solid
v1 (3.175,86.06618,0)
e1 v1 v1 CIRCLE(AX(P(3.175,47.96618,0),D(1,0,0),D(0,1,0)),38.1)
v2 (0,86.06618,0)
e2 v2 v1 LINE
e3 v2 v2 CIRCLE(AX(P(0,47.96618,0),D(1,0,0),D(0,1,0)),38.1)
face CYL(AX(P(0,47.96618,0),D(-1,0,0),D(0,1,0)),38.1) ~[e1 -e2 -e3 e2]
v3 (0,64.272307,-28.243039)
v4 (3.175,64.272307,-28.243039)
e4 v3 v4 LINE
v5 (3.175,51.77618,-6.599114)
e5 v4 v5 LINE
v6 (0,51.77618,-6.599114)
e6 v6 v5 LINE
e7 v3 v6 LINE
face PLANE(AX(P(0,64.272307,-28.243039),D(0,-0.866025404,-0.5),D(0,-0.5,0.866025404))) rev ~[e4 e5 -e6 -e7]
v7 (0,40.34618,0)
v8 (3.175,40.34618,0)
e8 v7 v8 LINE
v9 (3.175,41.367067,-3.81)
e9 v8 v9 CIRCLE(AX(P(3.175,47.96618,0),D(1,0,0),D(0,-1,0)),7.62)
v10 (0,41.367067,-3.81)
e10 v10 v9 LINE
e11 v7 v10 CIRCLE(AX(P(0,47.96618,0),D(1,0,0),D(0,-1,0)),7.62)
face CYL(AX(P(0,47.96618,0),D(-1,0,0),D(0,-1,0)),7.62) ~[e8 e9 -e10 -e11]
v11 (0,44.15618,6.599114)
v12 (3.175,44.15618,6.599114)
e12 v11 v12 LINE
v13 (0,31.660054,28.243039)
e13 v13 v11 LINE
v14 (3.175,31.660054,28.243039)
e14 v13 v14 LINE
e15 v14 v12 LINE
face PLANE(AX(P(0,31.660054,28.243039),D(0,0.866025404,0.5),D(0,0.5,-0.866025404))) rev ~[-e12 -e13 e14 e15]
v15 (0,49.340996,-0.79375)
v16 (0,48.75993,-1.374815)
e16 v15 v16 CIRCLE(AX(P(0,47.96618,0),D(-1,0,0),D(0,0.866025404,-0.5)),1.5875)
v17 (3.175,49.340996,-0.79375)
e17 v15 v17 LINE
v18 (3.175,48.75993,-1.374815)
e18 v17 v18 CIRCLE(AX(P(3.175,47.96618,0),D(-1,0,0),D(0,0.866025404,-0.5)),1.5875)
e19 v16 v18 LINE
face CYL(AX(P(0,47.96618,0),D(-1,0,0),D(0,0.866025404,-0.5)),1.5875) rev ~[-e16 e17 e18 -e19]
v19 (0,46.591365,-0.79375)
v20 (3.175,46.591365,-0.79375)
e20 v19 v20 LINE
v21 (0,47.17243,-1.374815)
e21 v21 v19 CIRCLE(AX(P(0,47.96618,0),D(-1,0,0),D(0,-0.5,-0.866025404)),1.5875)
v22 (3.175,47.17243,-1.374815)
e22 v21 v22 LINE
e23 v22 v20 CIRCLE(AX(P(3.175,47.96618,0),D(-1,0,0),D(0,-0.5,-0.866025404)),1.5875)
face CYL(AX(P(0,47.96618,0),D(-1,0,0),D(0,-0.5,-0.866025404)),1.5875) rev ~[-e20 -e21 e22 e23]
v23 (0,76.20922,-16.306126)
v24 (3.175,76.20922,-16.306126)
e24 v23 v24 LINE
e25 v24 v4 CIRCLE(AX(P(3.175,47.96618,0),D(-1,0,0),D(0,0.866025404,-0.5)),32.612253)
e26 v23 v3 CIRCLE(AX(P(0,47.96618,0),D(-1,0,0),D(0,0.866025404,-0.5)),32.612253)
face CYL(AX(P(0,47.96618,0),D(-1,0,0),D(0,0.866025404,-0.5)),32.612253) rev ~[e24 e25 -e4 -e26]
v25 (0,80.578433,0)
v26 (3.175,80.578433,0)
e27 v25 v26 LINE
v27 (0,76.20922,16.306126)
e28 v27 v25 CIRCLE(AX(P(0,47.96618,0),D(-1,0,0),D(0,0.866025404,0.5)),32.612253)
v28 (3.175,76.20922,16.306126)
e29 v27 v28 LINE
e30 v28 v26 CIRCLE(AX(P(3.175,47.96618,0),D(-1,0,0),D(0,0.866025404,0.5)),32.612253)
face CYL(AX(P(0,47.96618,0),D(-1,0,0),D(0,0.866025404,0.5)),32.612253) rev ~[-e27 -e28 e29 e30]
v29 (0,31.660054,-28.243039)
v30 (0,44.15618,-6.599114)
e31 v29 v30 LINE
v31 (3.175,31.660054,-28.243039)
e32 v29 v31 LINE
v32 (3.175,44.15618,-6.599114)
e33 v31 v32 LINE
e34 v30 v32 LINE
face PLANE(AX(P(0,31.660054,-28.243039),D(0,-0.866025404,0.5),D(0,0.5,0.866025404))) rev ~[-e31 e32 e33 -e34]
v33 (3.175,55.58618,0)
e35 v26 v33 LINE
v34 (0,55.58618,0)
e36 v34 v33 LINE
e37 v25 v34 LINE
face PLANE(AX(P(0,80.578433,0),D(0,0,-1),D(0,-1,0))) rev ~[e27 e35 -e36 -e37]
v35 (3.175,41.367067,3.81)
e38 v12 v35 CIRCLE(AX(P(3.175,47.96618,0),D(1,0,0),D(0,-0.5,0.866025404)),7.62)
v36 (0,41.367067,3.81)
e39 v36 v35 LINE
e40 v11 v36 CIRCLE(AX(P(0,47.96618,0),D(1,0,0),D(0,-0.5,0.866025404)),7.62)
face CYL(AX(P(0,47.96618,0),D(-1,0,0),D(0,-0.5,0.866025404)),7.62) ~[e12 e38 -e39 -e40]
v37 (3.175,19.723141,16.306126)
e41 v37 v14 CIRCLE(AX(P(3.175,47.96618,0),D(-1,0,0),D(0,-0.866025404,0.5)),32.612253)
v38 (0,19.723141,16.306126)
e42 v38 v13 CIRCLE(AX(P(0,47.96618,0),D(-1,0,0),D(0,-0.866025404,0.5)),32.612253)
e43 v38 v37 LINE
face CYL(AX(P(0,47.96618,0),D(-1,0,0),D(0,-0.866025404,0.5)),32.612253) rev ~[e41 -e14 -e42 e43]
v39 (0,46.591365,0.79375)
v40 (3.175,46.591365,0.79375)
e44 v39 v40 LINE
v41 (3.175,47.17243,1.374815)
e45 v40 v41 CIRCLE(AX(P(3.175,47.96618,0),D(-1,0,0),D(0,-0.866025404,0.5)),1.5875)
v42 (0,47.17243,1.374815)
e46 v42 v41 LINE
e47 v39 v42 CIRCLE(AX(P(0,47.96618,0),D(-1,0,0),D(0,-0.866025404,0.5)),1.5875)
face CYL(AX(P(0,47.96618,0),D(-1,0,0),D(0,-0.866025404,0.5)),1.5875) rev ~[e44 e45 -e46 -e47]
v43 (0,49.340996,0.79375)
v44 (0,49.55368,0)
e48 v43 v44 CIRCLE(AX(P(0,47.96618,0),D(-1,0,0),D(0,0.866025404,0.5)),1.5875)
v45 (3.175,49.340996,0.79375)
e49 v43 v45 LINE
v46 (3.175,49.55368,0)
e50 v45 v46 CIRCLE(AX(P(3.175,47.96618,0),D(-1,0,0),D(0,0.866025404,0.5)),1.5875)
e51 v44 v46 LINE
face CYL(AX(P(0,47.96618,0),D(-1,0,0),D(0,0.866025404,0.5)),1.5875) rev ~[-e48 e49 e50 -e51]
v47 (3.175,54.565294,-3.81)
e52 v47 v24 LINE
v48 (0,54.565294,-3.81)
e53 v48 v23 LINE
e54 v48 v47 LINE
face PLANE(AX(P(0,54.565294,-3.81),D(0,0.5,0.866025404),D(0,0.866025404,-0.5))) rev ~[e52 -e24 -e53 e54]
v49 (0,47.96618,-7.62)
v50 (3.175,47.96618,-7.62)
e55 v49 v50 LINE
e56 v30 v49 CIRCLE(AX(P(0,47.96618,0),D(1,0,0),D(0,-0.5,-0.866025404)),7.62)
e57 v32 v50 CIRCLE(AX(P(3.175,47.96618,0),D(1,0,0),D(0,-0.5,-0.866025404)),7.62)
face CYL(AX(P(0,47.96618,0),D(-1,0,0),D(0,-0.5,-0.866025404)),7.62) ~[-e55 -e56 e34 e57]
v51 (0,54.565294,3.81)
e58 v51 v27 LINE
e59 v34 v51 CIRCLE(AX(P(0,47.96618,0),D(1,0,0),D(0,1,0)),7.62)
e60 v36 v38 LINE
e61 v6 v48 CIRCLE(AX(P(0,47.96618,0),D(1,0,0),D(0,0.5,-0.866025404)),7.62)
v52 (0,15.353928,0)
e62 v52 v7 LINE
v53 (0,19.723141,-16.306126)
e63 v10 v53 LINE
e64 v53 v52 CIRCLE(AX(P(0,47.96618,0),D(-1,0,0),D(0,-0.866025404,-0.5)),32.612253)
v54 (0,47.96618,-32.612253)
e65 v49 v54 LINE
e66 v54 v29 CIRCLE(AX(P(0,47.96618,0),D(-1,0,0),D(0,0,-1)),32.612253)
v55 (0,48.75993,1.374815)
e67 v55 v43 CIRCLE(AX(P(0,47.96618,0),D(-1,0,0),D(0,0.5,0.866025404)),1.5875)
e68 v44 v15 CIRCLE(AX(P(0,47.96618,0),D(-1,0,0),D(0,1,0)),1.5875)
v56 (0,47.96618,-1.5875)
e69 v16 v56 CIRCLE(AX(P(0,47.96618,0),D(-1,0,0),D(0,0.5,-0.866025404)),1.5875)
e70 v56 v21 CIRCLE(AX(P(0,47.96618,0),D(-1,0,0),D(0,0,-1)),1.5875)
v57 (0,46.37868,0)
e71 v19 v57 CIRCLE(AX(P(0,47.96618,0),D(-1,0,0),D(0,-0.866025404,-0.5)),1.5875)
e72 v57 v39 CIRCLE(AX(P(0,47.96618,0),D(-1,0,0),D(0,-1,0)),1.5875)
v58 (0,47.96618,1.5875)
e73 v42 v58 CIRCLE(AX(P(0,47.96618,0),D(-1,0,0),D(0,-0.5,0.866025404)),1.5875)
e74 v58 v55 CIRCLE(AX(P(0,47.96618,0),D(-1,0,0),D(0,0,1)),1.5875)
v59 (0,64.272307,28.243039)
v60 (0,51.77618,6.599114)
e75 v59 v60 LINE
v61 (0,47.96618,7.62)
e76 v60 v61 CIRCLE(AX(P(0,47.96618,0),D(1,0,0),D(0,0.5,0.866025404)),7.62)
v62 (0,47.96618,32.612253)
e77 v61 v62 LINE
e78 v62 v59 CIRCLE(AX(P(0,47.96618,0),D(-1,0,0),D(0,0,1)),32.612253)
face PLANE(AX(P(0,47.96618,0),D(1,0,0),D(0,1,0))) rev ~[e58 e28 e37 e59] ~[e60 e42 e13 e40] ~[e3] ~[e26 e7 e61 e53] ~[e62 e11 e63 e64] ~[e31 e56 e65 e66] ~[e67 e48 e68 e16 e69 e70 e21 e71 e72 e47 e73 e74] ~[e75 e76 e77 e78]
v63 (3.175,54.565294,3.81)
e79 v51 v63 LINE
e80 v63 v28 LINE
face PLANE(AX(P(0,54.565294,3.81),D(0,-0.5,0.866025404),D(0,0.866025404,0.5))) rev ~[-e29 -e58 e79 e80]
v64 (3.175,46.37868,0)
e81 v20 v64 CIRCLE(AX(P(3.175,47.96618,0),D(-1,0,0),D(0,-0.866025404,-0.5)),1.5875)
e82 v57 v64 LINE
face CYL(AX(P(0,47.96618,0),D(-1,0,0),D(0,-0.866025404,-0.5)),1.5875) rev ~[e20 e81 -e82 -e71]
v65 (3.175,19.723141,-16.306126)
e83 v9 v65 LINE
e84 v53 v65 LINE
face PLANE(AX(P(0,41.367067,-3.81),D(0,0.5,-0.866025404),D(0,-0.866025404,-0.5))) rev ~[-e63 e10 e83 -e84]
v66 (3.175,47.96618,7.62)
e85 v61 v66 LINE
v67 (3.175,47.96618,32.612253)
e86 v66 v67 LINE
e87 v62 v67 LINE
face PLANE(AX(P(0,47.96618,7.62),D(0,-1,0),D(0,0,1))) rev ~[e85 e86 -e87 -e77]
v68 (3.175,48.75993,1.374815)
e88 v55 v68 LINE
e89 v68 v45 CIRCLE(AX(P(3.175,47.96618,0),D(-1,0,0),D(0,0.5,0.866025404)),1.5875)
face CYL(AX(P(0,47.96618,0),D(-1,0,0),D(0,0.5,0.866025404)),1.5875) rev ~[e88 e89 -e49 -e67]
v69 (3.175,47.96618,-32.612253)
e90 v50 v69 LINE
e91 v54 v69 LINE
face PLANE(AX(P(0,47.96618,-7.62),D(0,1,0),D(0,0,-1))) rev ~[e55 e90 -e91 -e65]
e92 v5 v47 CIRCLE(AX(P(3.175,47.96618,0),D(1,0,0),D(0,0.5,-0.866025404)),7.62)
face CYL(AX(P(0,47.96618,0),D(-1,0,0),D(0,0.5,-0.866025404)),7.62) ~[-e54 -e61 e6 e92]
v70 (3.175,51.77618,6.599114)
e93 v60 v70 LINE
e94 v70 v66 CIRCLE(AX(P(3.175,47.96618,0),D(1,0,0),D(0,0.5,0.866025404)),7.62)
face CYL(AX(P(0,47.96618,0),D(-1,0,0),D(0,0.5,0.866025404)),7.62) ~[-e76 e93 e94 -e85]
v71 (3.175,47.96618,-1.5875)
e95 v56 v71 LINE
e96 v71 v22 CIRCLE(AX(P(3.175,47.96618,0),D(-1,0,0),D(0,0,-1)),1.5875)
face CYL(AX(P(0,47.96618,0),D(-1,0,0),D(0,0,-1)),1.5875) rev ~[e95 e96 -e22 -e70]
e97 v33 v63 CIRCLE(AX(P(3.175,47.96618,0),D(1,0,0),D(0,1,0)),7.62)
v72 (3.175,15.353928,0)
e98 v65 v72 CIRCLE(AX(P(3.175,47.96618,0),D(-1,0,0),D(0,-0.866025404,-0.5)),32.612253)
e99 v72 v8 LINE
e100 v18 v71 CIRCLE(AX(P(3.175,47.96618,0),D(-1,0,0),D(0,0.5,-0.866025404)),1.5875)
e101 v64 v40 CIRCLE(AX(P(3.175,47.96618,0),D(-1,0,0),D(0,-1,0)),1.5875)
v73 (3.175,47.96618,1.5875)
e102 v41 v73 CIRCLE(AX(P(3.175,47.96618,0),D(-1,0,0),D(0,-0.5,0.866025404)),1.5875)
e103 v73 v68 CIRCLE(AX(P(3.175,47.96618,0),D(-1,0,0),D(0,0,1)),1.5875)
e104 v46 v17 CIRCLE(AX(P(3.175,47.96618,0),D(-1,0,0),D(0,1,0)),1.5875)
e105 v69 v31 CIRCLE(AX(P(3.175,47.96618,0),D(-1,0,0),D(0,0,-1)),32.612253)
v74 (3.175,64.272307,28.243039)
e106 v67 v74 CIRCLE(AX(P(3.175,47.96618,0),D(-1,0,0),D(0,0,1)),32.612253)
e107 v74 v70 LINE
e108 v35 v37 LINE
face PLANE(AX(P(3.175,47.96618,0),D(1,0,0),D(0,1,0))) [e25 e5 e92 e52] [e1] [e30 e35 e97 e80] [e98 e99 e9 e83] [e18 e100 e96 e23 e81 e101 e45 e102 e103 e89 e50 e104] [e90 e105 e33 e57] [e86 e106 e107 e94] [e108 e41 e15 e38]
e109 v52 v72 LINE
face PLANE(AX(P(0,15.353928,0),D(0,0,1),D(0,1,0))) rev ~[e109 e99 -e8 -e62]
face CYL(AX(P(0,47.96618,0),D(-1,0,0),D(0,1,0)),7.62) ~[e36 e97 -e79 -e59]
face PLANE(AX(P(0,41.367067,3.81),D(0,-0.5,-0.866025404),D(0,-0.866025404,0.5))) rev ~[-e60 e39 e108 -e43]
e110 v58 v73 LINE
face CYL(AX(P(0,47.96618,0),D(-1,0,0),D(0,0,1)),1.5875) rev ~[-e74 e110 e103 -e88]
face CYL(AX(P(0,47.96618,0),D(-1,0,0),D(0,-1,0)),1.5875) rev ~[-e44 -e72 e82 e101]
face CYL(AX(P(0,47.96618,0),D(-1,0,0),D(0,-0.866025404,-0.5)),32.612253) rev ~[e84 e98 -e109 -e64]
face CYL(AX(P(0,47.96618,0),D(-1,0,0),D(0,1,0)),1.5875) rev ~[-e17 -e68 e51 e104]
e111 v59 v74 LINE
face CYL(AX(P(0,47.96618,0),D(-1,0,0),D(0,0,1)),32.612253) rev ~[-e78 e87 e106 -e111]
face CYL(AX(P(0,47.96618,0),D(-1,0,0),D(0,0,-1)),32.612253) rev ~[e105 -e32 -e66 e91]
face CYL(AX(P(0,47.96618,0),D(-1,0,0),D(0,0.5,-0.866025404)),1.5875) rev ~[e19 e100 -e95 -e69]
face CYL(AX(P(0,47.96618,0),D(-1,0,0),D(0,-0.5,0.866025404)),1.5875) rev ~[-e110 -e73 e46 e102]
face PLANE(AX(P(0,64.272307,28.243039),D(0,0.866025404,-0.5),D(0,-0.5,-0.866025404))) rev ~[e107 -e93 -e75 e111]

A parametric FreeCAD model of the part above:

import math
import FreeCAD as App
import Part
import Sketcher
Q = App.Units.Quantity

doc = App.newDocument("Part")
body = doc.addObject("PartDesign::Body", "Body")

# Sketch on YZ plane
sketch1 = doc.addObject("Sketcher::SketchObject", "Sketch")
body.addObject(sketch1)
sketch1.AttachmentSupport = (doc.YZ_Plane, [""])
sketch1.MapMode = "FlatFace"
sketch1.addGeometry(Part.Circle(App.Vector(48, 0, 0), App.Vector(0, 0, 1), 38.1), False)
sketch1.addGeometry(Part.LineSegment(App.Vector(41.4, 3.8, 0), App.Vector(19.7, 16.3, 0)), False)
sketch1.addGeometry(Part.ArcOfCircle(Part.Circle(App.Vector(48, 0, 0), App.Vector(0, 0, 1), 32.6), math.radians(120), math.radians(150)), False)
sketch1.addGeometry(Part.LineSegment(App.Vector(31.7, 28.2, 0), App.Vector(44.2, 6.6, 0)), False)
sketch1.addGeometry(Part.ArcOfCircle(Part.Circle(App.Vector(48, 0, 0), App.Vector(0, 0, 1), 7.6), math.radians(120), math.radians(150)), False)
sketch1.addGeometry(Part.ArcOfCircle(Part.Circle(App.Vector(48, 0, 0), App.Vector(0, 0, 1), 1.6), math.radians(90), math.radians(120)), False)
sketch1.addGeometry(Part.ArcOfCircle(Part.Circle(App.Vector(48, 0, 0), App.Vector(0, 0, 1), 1.6), math.radians(60), math.radians(90)), False)
sketch1.addGeometry(Part.ArcOfCircle(Part.Circle(App.Vector(48, 0, 0), App.Vector(0, 0, 1), 1.6), math.radians(30), math.radians(60)), False)
sketch1.addGeometry(Part.ArcOfCircle(Part.Circle(App.Vector(48, 0, 0), App.Vector(0, 0, 1), 1.6), math.radians(0), math.radians(30)), False)
sketch1.addGeometry(Part.ArcOfCircle(Part.Circle(App.Vector(48, 0, 0), App.Vector(0, 0, 1), 1.6), math.radians(-30), math.radians(0)), False)
sketch1.addGeometry(Part.ArcOfCircle(Part.Circle(App.Vector(48, 0, 0), App.Vector(0, 0, 1), 1.6), math.radians(-60), math.radians(-30)), False)
sketch1.addGeometry(Part.ArcOfCircle(Part.Circle(App.Vector(48, 0, 0), App.Vector(0, 0, 1), 1.6), math.radians(-90), math.radians(-60)), False)
sketch1.addGeometry(Part.ArcOfCircle(Part.Circle(App.Vector(48, 0, 0), App.Vector(0, 0, 1), 1.6), math.radians(-120), math.radians(-90)), False)
sketch1.addGeometry(Part.ArcOfCircle(Part.Circle(App.Vector(48, 0, 0), App.Vector(0, 0, 1), 1.6), math.radians(-150), math.radians(-120)), False)
sketch1.addGeometry(Part.ArcOfCircle(Part.Circle(App.Vector(48, 0, 0), App.Vector(0, 0, 1), 1.6), math.radians(180), math.radians(210)), False)
sketch1.addGeometry(Part.ArcOfCircle(Part.Circle(App.Vector(48, 0, 0), App.Vector(0, 0, 1), 1.6), math.radians(150), math.radians(180)), False)
sketch1.addGeometry(Part.ArcOfCircle(Part.Circle(App.Vector(48, 0, 0), App.Vector(0, 0, 1), 1.6), math.radians(120), math.radians(150)), False)
sketch1.addGeometry(Part.LineSegment(App.Vector(54.6, 3.8, 0), App.Vector(76.2, 16.3, 0)), False)
sketch1.addGeometry(Part.ArcOfCircle(Part.Circle(App.Vector(48, 0, 0), App.Vector(0, 0, 1), 32.6), math.radians(0), math.radians(30)), False)
sketch1.addGeometry(Part.LineSegment(App.Vector(80.6, 0, 0), App.Vector(55.6, 0, 0)), False)
sketch1.addGeometry(Part.ArcOfCircle(Part.Circle(App.Vector(48, 0, 0), App.Vector(0, 0, 1), 7.6), math.radians(0), math.radians(30)), False)
sketch1.addGeometry(Part.LineSegment(App.Vector(48, 7.6, 0), App.Vector(48, 32.6, 0)), False)
sketch1.addGeometry(Part.ArcOfCircle(Part.Circle(App.Vector(48, 0, 0), App.Vector(0, 0, 1), 32.6), math.radians(60), math.radians(90)), False)
sketch1.addGeometry(Part.LineSegment(App.Vector(64.3, 28.2, 0), App.Vector(51.8, 6.6, 0)), False)
sketch1.addGeometry(Part.ArcOfCircle(Part.Circle(App.Vector(48, 0, 0), App.Vector(0, 0, 1), 7.6), math.radians(60), math.radians(90)), False)
sketch1.addGeometry(Part.LineSegment(App.Vector(41.4, -3.8, 0), App.Vector(19.7, -16.3, 0)), False)
sketch1.addGeometry(Part.ArcOfCircle(Part.Circle(App.Vector(48, 0, 0), App.Vector(0, 0, 1), 32.6), math.radians(180), math.radians(210)), False)
sketch1.addGeometry(Part.LineSegment(App.Vector(15.4, 0, 0), App.Vector(40.3, 0, 0)), False)
sketch1.addGeometry(Part.ArcOfCircle(Part.Circle(App.Vector(48, 0, 0), App.Vector(0, 0, 1), 7.6), math.radians(180), math.radians(210)), False)
sketch1.addGeometry(Part.LineSegment(App.Vector(48, -7.6, 0), App.Vector(48, -32.6, 0)), False)
sketch1.addGeometry(Part.ArcOfCircle(Part.Circle(App.Vector(48, 0, 0), App.Vector(0, 0, 1), 32.6), math.radians(-120), math.radians(-90)), False)
sketch1.addGeometry(Part.LineSegment(App.Vector(31.7, -28.2, 0), App.Vector(44.2, -6.6, 0)), False)
sketch1.addGeometry(Part.ArcOfCircle(Part.Circle(App.Vector(48, 0, 0), App.Vector(0, 0, 1), 7.6), math.radians(-120), math.radians(-90)), False)
sketch1.addGeometry(Part.LineSegment(App.Vector(64.3, -28.2, 0), App.Vector(51.8, -6.6, 0)), False)
sketch1.addGeometry(Part.ArcOfCircle(Part.Circle(App.Vector(48, 0, 0), App.Vector(0, 0, 1), 7.6), math.radians(-60), math.radians(-30)), False)
sketch1.addGeometry(Part.LineSegment(App.Vector(54.6, -3.8, 0), App.Vector(76.2, -16.3, 0)), False)
sketch1.addGeometry(Part.ArcOfCircle(Part.Circle(App.Vector(48, 0, 0), App.Vector(0, 0, 1), 32.6), math.radians(-60), math.radians(-30)), False)
sketch1.addConstraint(Sketcher.Constraint("Coincident", 1, 2, 2, 2))
sketch1.addConstraint(Sketcher.Constraint("Coincident", 2, 1, 3, 1))
sketch1.addConstraint(Sketcher.Constraint("Coincident", 3, 2, 4, 1))
sketch1.addConstraint(Sketcher.Constraint("Coincident", 4, 2, 1, 1))
sketch1.addConstraint(Sketcher.Constraint("Tangent", 5, 1, 6, 2))
sketch1.addConstraint(Sketcher.Constraint("Tangent", 6, 1, 7, 2))
sketch1.addConstraint(Sketcher.Constraint("Tangent", 7, 1, 8, 2))
sketch1.addConstraint(Sketcher.Constraint("Tangent", 8, 1, 9, 2))
sketch1.addConstraint(Sketcher.Constraint("Tangent", 9, 1, 10, 2))
sketch1.addConstraint(Sketcher.Constraint("Tangent", 10, 1, 11, 2))
sketch1.addConstraint(Sketcher.Constraint("Tangent", 11, 1, 12, 2))
sketch1.addConstraint(Sketcher.Constraint("Tangent", 12, 1, 13, 2))
sketch1.addConstraint(Sketcher.Constraint("Tangent", 13, 1, 14, 2))
sketch1.addConstraint(Sketcher.Constraint("Tangent", 14, 1, 15, 2))
sketch1.addConstraint(Sketcher.Constraint("Tangent", 15, 1, 16, 2))
sketch1.addConstraint(Sketcher.Constraint("Tangent", 16, 1, 5, 2))
sketch1.addConstraint(Sketcher.Constraint("Coincident", 17, 2, 18, 2))
sketch1.addConstraint(Sketcher.Constraint("Coincident", 18, 1, 19, 1))
sketch1.addConstraint(Sketcher.Constraint("Coincident", 19, 2, 20, 1))
sketch1.addConstraint(Sketcher.Constraint("Coincident", 20, 2, 17, 1))
sketch1.addConstraint(Sketcher.Constraint("Coincident", 21, 2, 22, 2))
sketch1.addConstraint(Sketcher.Constraint("Coincident", 22, 1, 23, 1))
sketch1.addConstraint(Sketcher.Constraint("Coincident", 23, 2, 24, 1))
sketch1.addConstraint(Sketcher.Constraint("Coincident", 24, 2, 21, 1))
sketch1.addConstraint(Sketcher.Constraint("Coincident", 25, 2, 26, 2))
sketch1.addConstraint(Sketcher.Constraint("Coincident", 26, 1, 27, 1))
sketch1.addConstraint(Sketcher.Constraint("Coincident", 27, 2, 28, 1))
sketch1.addConstraint(Sketcher.Constraint("Coincident", 28, 2, 25, 1))
sketch1.addConstraint(Sketcher.Constraint("Coincident", 29, 2, 30, 2))
sketch1.addConstraint(Sketcher.Constraint("Coincident", 30, 1, 31, 1))
sketch1.addConstraint(Sketcher.Constraint("Coincident", 31, 2, 32, 1))
sketch1.addConstraint(Sketcher.Constraint("Coincident", 32, 2, 29, 1))
sketch1.addConstraint(Sketcher.Constraint("Coincident", 33, 2, 34, 1))
sketch1.addConstraint(Sketcher.Constraint("Coincident", 34, 2, 35, 1))
sketch1.addConstraint(Sketcher.Constraint("Coincident", 35, 2, 36, 2))
sketch1.addConstraint(Sketcher.Constraint("Coincident", 36, 1, 33, 1))
sketch1.addConstraint(Sketcher.Constraint("Horizontal", 19))
sketch1.addConstraint(Sketcher.Constraint("Vertical", 21))
sketch1.addConstraint(Sketcher.Constraint("Horizontal", 27))
sketch1.addConstraint(Sketcher.Constraint("Vertical", 29))
sketch1.addConstraint(Sketcher.Constraint("Coincident", 2, 3, 0, 3))
sketch1.addConstraint(Sketcher.Constraint("Coincident", 4, 3, 0, 3))
sketch1.addConstraint(Sketcher.Constraint("Coincident", 5, 3, 0, 3))
sketch1.addConstraint(Sketcher.Constraint("Coincident", 7, 3, 0, 3))
sketch1.addConstraint(Sketcher.Constraint("Coincident", 9, 3, 0, 3))
sketch1.addConstraint(Sketcher.Constraint("Coincident", 11, 3, 0, 3))
sketch1.addConstraint(Sketcher.Constraint("Coincident", 13, 3, 0, 3))
sketch1.addConstraint(Sketcher.Constraint("Coincident", 18, 3, 0, 3))
sketch1.addConstraint(Sketcher.Constraint("Coincident", 20, 3, 0, 3))
sketch1.addConstraint(Sketcher.Constraint("Coincident", 22, 3, 0, 3))
sketch1.addConstraint(Sketcher.Constraint("Coincident", 24, 3, 0, 3))
sketch1.addConstraint(Sketcher.Constraint("Coincident", 26, 3, 0, 3))
sketch1.addConstraint(Sketcher.Constraint("Coincident", 28, 3, 0, 3))
sketch1.addConstraint(Sketcher.Constraint("Coincident", 30, 3, 0, 3))
sketch1.addConstraint(Sketcher.Constraint("Coincident", 32, 3, 0, 3))
sketch1.addConstraint(Sketcher.Constraint("Coincident", 34, 3, 0, 3))
sketch1.addConstraint(Sketcher.Constraint("Coincident", 36, 3, 0, 3))
sketch1.addConstraint(Sketcher.Constraint("Equal", 13, 14))
sketch1.addConstraint(Sketcher.Constraint("Equal", 2, 18))
sketch1.addConstraint(Sketcher.Constraint("Equal", 4, 20))
sketch1.addConstraint(Sketcher.Constraint("Equal", 18, 22))
sketch1.addConstraint(Sketcher.Constraint("Equal", 20, 24))
sketch1.addConstraint(Sketcher.Constraint("Equal", 22, 26))
sketch1.addConstraint(Sketcher.Constraint("Equal", 24, 28))
sketch1.addConstraint(Sketcher.Constraint("Equal", 26, 30))
sketch1.addConstraint(Sketcher.Constraint("Equal", 28, 32))
sketch1.addConstraint(Sketcher.Constraint("Equal", 32, 34))
sketch1.addConstraint(Sketcher.Constraint("Equal", 30, 36))
sketch1.addConstraint(Sketcher.Constraint("Symmetric", 7, 1, 9, 1, -1))
sketch1.addConstraint(Sketcher.Constraint("PointOnObject", 8, 1, -1))
sketch1.addConstraint(Sketcher.Constraint("PointOnObject", 14, 1, -1))
sketch1.addConstraint(Sketcher.Constraint("PointOnObject", 18, 1, -1))
sketch1.addConstraint(Sketcher.Constraint("PointOnObject", 26, 1, -1))
sketch1.addConstraint(Sketcher.Constraint("Perpendicular", 3, 17))
sketch1.addConstraint(Sketcher.Constraint("Perpendicular", 1, 23))
sketch1.addConstraint(Sketcher.Constraint("Parallel", 17, 25))
sketch1.addConstraint(Sketcher.Constraint("Parallel", 23, 31))
sketch1.addConstraint(Sketcher.Constraint("Perpendicular", 25, 33))
sketch1.addConstraint(Sketcher.Constraint("Perpendicular", 31, 35))
sketch1.addConstraint(Sketcher.Constraint("Horizontal", 10, 1, 12, 1))
sketch1.addConstraint(Sketcher.Constraint("Horizontal", 9, 1, 13, 1))
sketch1.addConstraint(Sketcher.Constraint("Horizontal", 7, 1, 15, 1))
sketch1.addConstraint(Sketcher.Constraint("Horizontal", 6, 1, 16, 1))
sketch1.addConstraint(Sketcher.Constraint("Horizontal", 1, 2, 17, 2))
sketch1.addConstraint(Sketcher.Constraint("Horizontal", 4, 2, 20, 2))
sketch1.addConstraint(Sketcher.Constraint("Horizontal", 2, 1, 22, 1))
sketch1.addConstraint(Sketcher.Constraint("Horizontal", 31, 2, 33, 2))
sketch1.addConstraint(Sketcher.Constraint("Horizontal", 28, 2, 34, 2))
sketch1.addConstraint(Sketcher.Constraint("Vertical", 36, 3, 5, 1))
sketch1.addConstraint(Sketcher.Constraint("Vertical", 6, 1, 10, 1))
sketch1.addConstraint(Sketcher.Constraint("Vertical", 5, 1, 11, 1))
sketch1.addConstraint(Sketcher.Constraint("Vertical", 11, 1, 21, 2))
sketch1.addConstraint(Sketcher.Constraint("Vertical", 1, 2, 25, 2))
sketch1.addConstraint(Sketcher.Constraint("Vertical", 24, 2, 29, 2))
sketch1.addConstraint(Sketcher.Constraint("Vertical", 2, 1, 30, 1))
sketch1.addConstraint(Sketcher.Constraint("Diameter", 0, Q("3 in")))
sketch1.addConstraint(Sketcher.Constraint("Radius", 4, Q("0.3 in")))
sketch1.addConstraint(Sketcher.Constraint("Angle", 1, Q("150 deg")))
sketch1.addConstraint(Sketcher.Constraint("Radius", 5, Q("0.0625 in")))
sketch1.addConstraint(Sketcher.Constraint("DistanceY", -1, 1, 4, 2, Q("0.15 in")))
sketch1.addConstraint(Sketcher.Constraint("DistanceY", -1, 1, 7, 1, Q("0.03125 in")))
sketch1.addConstraint(Sketcher.Constraint("Radius", 2, 32.612253))
sketch1.addConstraint(Sketcher.Constraint("DistanceX", -1, 1, 0, 3, 47.96618))
sketch1.addConstraint(Sketcher.Constraint("DistanceY", -1, 1, 2, 1, 28.243039))
sketch1.addConstraint(Sketcher.Constraint("DistanceX", -1, 1, 6, 1, 48.75993))
pad1 = doc.addObject("PartDesign::Pad", "Pad")
body.addObject(pad1)
pad1.Profile = sketch1
pad1.Length = Q("0.125 in")

doc.recompute()
